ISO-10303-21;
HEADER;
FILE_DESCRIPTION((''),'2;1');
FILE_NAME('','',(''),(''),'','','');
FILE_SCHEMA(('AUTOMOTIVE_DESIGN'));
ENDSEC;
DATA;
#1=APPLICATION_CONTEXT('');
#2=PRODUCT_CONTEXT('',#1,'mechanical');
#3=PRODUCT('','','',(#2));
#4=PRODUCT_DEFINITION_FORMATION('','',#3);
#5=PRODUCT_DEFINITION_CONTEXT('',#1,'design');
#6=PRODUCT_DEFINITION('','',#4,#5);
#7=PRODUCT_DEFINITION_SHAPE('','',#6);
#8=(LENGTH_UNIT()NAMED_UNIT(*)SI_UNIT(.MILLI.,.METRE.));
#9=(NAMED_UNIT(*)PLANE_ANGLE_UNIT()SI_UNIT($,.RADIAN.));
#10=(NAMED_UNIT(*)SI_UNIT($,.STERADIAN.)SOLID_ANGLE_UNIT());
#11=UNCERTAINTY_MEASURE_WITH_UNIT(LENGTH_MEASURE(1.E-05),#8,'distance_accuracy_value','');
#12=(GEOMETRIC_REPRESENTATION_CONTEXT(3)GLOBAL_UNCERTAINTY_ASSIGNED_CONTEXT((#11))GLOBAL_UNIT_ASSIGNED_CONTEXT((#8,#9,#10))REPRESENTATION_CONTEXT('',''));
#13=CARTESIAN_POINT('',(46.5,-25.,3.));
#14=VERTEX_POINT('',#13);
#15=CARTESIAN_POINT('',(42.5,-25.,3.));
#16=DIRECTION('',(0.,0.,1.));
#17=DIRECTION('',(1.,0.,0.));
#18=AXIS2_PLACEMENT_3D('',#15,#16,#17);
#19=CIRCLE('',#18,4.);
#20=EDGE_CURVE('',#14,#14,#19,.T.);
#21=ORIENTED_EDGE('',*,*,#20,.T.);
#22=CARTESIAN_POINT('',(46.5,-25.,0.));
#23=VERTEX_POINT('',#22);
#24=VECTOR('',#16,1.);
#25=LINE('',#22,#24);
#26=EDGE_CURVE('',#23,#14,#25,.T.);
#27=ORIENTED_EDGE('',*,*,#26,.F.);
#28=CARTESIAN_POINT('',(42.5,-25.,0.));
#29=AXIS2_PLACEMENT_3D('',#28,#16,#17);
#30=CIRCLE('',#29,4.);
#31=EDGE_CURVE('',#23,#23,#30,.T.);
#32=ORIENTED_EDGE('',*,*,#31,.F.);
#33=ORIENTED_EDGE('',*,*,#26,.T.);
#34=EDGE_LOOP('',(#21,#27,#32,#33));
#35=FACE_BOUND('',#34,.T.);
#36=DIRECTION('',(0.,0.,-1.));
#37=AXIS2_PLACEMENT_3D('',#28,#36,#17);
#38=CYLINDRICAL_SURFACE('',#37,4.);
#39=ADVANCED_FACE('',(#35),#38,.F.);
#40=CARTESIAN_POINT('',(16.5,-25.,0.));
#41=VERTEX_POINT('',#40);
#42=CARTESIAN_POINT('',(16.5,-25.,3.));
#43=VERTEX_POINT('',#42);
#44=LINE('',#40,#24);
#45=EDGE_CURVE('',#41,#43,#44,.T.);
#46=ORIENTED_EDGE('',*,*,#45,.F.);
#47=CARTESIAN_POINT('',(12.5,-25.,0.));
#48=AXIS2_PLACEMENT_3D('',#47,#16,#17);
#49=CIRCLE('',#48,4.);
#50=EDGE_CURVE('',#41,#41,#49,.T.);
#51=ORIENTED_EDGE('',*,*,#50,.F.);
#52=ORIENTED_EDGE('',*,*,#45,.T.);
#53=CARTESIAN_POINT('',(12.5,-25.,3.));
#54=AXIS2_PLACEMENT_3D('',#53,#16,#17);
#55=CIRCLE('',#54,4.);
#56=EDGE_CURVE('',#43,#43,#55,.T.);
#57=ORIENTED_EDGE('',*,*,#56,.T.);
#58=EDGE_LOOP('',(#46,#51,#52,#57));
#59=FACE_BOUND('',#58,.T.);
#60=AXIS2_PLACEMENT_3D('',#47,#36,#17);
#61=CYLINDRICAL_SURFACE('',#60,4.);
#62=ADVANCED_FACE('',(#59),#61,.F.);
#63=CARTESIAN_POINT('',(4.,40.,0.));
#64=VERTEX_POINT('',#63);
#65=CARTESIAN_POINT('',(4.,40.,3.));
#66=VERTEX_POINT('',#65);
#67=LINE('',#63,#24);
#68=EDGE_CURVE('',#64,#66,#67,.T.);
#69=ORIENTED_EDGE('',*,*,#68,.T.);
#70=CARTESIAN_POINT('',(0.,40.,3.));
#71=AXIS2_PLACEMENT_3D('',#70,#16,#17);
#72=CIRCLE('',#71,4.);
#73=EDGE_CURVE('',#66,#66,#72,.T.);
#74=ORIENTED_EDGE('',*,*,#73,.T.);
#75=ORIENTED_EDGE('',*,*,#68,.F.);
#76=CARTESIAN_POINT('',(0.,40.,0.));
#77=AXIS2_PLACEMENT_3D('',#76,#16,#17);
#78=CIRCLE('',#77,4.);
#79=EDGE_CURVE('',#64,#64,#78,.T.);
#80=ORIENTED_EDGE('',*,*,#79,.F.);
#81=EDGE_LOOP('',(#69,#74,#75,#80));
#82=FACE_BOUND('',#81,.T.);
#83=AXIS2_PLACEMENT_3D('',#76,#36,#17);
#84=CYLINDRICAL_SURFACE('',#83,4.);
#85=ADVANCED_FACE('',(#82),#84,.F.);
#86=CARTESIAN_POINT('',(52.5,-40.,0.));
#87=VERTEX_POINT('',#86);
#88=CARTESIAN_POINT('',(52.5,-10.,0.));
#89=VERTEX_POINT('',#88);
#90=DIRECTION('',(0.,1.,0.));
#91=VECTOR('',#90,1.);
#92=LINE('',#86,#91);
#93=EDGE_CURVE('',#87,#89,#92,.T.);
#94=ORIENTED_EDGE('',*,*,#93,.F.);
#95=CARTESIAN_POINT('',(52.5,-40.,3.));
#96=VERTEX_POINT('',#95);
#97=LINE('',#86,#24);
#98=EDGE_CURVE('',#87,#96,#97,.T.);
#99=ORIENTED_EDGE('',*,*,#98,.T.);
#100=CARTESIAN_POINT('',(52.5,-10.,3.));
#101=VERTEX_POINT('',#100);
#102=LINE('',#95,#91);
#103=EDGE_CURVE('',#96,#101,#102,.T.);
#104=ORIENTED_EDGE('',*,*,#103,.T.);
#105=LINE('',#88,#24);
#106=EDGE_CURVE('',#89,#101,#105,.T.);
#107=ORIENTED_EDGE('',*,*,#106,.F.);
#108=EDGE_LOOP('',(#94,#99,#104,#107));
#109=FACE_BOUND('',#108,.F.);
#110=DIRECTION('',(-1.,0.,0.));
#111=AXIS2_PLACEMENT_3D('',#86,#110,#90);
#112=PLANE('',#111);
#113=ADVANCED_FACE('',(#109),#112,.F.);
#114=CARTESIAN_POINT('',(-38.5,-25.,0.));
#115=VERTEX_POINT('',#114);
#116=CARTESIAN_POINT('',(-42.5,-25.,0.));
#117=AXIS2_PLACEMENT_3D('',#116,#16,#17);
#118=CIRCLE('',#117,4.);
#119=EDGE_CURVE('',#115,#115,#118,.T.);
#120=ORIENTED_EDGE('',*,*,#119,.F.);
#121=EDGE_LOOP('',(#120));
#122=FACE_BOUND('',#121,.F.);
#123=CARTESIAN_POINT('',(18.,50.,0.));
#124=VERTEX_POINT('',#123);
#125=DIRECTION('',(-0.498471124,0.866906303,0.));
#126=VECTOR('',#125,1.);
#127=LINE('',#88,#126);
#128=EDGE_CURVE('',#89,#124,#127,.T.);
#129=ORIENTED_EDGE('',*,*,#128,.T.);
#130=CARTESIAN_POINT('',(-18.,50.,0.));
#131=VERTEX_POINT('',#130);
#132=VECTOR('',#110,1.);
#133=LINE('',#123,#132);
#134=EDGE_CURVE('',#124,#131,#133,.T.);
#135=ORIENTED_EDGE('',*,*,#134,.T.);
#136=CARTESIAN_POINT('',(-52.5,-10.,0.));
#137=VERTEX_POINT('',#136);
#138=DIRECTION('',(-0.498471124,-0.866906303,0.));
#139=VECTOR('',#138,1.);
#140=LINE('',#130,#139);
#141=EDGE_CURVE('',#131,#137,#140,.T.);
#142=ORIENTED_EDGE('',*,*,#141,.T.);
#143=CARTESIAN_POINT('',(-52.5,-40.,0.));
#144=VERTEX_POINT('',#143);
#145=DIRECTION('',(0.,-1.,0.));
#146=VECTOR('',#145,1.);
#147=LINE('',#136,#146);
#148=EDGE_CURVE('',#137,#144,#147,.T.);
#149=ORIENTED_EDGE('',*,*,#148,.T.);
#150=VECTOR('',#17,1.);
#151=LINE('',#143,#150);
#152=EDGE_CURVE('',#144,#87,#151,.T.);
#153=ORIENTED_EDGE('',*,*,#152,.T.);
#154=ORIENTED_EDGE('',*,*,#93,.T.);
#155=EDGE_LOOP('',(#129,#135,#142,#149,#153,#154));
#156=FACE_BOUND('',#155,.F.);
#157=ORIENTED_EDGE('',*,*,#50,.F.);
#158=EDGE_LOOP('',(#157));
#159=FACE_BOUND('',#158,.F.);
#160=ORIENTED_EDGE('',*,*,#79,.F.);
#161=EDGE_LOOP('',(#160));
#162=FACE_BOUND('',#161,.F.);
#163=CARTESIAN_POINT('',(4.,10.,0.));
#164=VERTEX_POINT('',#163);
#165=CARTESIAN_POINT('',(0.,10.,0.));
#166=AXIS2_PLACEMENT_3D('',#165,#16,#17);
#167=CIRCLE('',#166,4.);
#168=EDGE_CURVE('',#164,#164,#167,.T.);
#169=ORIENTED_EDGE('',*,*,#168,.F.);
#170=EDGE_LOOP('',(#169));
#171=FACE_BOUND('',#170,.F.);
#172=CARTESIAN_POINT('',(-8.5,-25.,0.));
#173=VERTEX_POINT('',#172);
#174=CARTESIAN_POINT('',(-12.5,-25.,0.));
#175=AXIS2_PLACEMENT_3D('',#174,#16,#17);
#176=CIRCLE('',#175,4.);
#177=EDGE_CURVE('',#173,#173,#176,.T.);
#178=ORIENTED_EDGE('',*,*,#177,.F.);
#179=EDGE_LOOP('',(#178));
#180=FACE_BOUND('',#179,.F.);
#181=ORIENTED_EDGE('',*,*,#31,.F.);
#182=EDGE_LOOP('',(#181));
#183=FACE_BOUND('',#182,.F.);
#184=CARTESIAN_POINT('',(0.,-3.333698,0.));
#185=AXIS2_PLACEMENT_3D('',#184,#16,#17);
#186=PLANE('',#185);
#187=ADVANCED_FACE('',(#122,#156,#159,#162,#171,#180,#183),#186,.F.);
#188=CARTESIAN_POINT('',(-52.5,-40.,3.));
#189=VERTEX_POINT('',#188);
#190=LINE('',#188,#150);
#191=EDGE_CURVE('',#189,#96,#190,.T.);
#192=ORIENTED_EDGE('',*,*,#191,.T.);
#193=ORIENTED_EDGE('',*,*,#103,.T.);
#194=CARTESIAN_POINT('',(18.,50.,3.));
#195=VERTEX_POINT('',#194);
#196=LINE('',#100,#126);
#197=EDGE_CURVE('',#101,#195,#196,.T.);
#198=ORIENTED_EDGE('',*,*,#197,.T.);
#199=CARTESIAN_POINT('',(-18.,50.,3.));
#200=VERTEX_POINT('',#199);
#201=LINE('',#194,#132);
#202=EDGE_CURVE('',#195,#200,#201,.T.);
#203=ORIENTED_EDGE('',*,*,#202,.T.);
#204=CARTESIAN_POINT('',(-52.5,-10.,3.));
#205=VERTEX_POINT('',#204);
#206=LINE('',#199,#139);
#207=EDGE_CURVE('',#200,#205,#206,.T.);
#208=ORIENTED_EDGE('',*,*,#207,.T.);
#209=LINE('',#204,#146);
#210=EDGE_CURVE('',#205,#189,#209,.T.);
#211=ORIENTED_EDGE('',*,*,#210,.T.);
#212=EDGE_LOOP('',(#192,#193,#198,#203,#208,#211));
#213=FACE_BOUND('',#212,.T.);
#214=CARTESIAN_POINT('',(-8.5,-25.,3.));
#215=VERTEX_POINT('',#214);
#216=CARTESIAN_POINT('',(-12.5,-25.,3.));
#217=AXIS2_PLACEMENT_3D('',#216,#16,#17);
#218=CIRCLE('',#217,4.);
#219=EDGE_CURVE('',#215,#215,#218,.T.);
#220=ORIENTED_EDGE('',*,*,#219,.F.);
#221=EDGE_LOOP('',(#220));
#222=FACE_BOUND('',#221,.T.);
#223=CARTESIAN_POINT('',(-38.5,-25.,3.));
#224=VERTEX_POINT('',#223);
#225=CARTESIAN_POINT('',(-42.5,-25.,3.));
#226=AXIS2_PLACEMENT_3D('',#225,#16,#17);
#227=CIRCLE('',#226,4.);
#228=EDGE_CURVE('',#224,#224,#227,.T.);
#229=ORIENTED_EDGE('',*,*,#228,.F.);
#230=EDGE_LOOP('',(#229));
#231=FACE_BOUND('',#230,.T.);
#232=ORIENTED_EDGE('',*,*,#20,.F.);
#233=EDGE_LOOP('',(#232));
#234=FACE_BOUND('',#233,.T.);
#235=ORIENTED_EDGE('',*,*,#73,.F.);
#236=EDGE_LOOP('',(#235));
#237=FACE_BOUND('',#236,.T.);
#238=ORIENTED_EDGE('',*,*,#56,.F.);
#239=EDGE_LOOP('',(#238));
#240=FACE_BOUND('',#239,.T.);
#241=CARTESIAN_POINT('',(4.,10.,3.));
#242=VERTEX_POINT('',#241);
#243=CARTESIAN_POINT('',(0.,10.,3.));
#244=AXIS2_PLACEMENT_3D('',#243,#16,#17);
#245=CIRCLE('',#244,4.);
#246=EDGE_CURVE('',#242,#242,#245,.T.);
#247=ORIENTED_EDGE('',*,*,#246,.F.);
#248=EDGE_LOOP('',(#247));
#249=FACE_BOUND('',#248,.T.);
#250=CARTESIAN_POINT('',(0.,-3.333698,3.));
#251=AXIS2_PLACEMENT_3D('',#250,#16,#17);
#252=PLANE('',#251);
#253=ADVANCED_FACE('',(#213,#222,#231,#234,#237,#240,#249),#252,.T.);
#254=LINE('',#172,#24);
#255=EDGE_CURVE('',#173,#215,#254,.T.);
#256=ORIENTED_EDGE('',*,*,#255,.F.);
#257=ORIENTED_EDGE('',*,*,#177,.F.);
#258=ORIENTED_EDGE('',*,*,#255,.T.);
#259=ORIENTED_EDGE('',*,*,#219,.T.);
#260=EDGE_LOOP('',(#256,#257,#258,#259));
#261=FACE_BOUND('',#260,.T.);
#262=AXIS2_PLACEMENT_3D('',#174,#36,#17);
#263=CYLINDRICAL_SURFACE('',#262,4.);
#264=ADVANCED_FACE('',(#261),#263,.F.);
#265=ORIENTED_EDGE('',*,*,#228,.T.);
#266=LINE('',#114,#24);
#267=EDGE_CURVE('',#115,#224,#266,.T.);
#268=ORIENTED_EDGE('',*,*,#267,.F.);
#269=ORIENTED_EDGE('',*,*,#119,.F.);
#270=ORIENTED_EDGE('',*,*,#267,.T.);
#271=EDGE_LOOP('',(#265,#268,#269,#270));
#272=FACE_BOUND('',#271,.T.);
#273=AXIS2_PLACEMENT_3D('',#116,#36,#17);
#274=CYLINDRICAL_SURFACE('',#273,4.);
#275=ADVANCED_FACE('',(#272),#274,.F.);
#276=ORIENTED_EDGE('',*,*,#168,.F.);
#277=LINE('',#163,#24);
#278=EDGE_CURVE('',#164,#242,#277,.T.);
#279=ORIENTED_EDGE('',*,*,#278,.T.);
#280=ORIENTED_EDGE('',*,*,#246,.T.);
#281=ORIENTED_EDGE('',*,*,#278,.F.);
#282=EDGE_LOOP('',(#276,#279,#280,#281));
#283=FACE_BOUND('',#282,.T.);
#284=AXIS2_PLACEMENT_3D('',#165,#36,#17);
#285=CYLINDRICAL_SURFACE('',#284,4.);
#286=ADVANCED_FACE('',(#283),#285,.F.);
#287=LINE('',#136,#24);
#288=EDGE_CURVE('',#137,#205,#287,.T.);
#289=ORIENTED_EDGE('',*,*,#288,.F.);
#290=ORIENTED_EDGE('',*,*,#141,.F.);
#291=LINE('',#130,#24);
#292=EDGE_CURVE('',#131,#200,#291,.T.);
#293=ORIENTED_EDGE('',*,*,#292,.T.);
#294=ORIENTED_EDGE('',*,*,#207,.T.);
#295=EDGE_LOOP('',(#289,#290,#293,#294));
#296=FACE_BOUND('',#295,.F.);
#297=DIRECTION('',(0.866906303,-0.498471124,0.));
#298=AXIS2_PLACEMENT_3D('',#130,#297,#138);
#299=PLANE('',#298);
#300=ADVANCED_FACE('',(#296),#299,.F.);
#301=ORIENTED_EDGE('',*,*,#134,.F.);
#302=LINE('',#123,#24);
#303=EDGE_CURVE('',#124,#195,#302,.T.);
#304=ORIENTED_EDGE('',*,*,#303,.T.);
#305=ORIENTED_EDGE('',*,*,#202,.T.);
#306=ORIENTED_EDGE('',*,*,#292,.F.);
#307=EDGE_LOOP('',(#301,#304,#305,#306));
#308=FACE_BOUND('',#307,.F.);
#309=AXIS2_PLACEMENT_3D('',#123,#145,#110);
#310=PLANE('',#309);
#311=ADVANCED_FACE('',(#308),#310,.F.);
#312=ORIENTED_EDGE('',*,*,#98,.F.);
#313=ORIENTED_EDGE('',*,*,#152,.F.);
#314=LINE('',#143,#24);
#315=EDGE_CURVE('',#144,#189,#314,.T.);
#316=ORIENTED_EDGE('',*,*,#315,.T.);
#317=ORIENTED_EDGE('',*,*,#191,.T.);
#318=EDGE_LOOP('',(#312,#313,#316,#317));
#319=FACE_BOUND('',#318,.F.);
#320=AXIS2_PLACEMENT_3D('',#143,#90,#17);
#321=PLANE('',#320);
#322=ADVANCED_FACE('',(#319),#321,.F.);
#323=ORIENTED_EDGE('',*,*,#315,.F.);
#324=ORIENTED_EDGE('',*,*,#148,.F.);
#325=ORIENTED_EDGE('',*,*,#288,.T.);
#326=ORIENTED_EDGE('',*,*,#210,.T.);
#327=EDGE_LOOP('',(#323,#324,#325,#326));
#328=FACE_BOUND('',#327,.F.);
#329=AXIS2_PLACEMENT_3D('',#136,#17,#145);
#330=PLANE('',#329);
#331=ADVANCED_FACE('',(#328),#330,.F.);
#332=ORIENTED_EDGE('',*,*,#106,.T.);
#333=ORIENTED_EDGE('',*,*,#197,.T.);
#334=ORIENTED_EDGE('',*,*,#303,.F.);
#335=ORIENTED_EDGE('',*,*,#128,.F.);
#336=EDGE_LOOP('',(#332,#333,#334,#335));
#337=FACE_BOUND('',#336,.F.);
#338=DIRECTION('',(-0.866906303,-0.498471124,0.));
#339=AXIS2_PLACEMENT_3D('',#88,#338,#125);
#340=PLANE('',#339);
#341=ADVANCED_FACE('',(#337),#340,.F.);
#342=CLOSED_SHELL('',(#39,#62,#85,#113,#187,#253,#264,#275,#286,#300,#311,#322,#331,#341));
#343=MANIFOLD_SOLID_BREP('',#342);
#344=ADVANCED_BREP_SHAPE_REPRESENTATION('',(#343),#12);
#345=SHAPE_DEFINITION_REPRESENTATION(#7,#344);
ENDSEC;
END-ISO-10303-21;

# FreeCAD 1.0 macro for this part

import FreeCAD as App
import Part
import Sketcher
Q = App.Units.Quantity


def add_polygon(sketch, points):
    """Adds a closed chain of lines whose ends are joined by coincident constraints."""
    first, n = sketch.GeometryCount, len(points)
    for a, b in zip(points, points[1:] + points[:1]):
        sketch.addGeometry(Part.LineSegment(App.Vector(*a, 0), App.Vector(*b, 0)), False)
    for i in range(n):
        sketch.addConstraint(Sketcher.Constraint("Coincident", first + i, 2, first + (i + 1) % n, 1))

doc = App.newDocument("Part")
body = doc.addObject("PartDesign::Body", "Body")

# Sketch on XY plane
sketch1 = doc.addObject("Sketcher::SketchObject", "Sketch")
body.addObject(sketch1)
sketch1.AttachmentSupport = (doc.XY_Plane, [""])
sketch1.MapMode = "FlatFace"
add_polygon(sketch1, [(-52.5, -10), (-52.5, -40), (52.5, -40), (52.5, -10), (18, 50), (-18, 50)])  # lines 0-5
sketch1.addGeometry(Part.Circle(App.Vector(-42.5, -25, 0), App.Vector(0, 0, 1), 4), False)  # 6
sketch1.addGeometry(Part.Circle(App.Vector(-12.5, -25, 0), App.Vector(0, 0, 1), 4), False)  # 7
sketch1.addGeometry(Part.Circle(App.Vector(12.5, -25, 0), App.Vector(0, 0, 1), 4), False)  # 8
sketch1.addGeometry(Part.Circle(App.Vector(42.5, -25, 0), App.Vector(0, 0, 1), 4), False)  # 9
sketch1.addGeometry(Part.Circle(App.Vector(0, 10, 0), App.Vector(0, 0, 1), 4), False)  # 10
sketch1.addGeometry(Part.Circle(App.Vector(0, 40, 0), App.Vector(0, 0, 1), 4), False)  # 11
sketch1.addConstraint([
    Sketcher.Constraint("Vertical", 0),
    Sketcher.Constraint("Horizontal", 1),
    Sketcher.Constraint("Vertical", 2),
    Sketcher.Constraint("Horizontal", 4),
    Sketcher.Constraint("Equal", 6, 7),
    Sketcher.Constraint("Equal", 7, 8),
    Sketcher.Constraint("Equal", 8, 9),
    Sketcher.Constraint("Equal", 9, 10),
    Sketcher.Constraint("Equal", 10, 11),
    Sketcher.Constraint("Symmetric", 7, 3, 8, 3, -2),
    Sketcher.Constraint("Symmetric", 6, 3, 9, 3, -2),
    Sketcher.Constraint("Symmetric", 2, 2, 5, 2, -2),
    Sketcher.Constraint("PointOnObject", 10, 3, -2),
    Sketcher.Constraint("PointOnObject", 11, 3, -2),
    Sketcher.Constraint("Horizontal", 6, 3, 7, 3),
    Sketcher.Constraint("Equal", 3, 5),
    Sketcher.Constraint("Diameter", 6, Q("8 mm")),
    Sketcher.Constraint("DistanceX", 1, 1, 1, 2, Q("105 mm")),
    Sketcher.Constraint("DistanceX", 4, 2, 4, 1, Q("36 mm")),
    Sketcher.Constraint("DistanceY", 0, 2, 0, 1, Q("30 mm")),
    Sketcher.Constraint("DistanceY", 6, 3, -1, 1, Q("25 mm")),
    Sketcher.Constraint("DistanceY", -1, 1, 10, 3, Q("10 mm")),
    Sketcher.Constraint("DistanceY", -1, 1, 11, 3, Q("40 mm")),
    Sketcher.Constraint("DistanceY", 0, 2, -1, 1, Q("40 mm")),
    Sketcher.Constraint("DistanceY", -1, 1, 3, 2, Q("50 mm")),
    Sketcher.Constraint("DistanceX", 6, 3, 7, 3, Q("30 mm")),
    Sketcher.Constraint("DistanceX", 7, 3, 8, 3, Q("25 mm")),
])
pad1 = doc.addObject("PartDesign::Pad", "Pad")
body.addObject(pad1)
pad1.Profile = sketch1
pad1.Length = 3

doc.recompute()
